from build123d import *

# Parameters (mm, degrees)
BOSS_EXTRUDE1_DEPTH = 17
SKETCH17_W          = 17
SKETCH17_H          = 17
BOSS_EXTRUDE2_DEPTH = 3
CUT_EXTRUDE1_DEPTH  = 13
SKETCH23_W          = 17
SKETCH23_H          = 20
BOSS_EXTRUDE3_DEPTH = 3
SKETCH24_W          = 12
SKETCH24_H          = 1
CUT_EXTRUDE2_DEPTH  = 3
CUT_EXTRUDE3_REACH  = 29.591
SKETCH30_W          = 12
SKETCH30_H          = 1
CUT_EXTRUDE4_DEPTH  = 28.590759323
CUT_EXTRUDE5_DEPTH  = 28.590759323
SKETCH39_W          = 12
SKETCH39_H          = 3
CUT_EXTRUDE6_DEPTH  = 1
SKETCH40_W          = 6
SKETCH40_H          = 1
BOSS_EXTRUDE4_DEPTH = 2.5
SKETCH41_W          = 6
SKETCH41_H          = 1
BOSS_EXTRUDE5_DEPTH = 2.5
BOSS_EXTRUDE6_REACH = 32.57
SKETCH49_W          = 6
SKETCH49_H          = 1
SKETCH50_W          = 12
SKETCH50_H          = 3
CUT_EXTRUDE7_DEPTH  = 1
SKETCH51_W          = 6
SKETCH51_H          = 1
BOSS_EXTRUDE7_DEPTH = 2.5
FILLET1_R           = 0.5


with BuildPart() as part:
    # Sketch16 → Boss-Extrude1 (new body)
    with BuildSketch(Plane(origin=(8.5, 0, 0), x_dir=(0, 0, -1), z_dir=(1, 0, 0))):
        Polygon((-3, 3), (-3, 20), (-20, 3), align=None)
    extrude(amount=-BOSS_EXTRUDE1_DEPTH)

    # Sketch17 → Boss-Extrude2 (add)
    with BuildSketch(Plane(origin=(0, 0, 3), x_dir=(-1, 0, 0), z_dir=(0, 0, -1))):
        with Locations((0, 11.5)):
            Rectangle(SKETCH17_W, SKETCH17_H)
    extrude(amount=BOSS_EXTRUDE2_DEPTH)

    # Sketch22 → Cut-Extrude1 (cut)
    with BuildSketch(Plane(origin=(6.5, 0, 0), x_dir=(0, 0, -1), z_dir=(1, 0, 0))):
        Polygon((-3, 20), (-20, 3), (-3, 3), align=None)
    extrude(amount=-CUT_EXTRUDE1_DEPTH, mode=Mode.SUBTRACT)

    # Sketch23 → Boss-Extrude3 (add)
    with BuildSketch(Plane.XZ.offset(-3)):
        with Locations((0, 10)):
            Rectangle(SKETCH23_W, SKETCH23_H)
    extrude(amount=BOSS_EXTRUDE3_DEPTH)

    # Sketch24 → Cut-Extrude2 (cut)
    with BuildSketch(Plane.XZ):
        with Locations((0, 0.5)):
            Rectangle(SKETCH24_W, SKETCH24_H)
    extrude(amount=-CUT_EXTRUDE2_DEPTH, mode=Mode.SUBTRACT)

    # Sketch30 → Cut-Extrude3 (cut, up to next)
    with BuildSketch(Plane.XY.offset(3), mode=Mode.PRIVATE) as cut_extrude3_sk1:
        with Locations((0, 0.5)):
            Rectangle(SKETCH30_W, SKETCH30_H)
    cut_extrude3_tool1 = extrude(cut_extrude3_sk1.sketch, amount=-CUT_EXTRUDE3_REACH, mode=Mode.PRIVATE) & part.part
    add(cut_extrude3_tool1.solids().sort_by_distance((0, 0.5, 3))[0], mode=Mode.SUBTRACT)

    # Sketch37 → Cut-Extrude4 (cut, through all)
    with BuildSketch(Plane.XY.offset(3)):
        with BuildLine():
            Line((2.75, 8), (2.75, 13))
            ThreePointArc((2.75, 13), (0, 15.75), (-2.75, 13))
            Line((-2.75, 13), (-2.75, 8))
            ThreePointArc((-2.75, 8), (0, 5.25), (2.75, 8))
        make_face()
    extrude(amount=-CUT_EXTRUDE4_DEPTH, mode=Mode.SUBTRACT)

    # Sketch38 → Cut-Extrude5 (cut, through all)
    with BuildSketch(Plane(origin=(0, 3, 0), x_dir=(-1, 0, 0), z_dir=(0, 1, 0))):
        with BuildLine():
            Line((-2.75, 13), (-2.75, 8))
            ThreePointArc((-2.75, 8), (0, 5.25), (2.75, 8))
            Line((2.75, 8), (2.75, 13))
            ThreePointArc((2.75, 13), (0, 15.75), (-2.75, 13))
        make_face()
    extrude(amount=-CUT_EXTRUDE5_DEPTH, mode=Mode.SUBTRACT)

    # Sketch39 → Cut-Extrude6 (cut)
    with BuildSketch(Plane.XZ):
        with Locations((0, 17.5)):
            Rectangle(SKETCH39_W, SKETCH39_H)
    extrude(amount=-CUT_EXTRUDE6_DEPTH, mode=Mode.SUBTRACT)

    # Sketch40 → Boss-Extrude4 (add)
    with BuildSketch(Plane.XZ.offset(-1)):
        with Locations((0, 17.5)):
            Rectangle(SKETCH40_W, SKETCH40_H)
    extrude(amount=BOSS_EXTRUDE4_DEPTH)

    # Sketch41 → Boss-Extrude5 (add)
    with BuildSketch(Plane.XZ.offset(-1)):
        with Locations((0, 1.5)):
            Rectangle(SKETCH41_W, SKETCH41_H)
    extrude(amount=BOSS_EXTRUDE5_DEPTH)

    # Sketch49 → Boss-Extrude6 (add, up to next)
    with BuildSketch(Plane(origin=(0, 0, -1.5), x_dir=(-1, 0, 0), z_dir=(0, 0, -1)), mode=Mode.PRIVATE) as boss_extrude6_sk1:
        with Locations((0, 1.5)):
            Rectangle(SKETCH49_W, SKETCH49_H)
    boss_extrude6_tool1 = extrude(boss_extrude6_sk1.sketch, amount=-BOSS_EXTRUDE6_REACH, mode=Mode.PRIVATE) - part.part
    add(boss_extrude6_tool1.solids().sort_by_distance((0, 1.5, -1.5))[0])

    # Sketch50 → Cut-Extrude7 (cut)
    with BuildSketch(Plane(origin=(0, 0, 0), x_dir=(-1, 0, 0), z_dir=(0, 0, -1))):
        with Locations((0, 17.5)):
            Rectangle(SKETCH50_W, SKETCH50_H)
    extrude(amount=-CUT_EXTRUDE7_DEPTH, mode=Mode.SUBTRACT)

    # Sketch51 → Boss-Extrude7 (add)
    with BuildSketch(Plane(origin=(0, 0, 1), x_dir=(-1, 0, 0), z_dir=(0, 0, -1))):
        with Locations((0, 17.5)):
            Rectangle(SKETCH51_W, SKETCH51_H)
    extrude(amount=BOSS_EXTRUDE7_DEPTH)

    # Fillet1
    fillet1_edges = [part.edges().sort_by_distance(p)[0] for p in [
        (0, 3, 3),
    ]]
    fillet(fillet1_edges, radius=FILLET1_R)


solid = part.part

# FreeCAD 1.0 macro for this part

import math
import FreeCAD as App
import Part
import Sketcher
from FreeCAD import Vector


def edges_at(feature, points):
    """Names of the edges that pass closest to the given points."""
    edges = feature.Shape.Edges
    near = lambda p: min(range(len(edges)), key=lambda i: edges[i].distToShape(Part.Vertex(*p))[0])
    return sorted({f"Edge{near(p) + 1}" for p in points})

doc = App.newDocument("Part")
body = doc.addObject("PartDesign::Body", "Body")

sketch1 = doc.addObject("Sketcher::SketchObject", "Sketch")
body.addObject(sketch1)
sketch1.AttachmentSupport = (doc.YZ_Plane, [""])
sketch1.MapMode = "FlatFace"
sketch1.AttachmentOffset = App.Placement(Vector(0, 0, 8.5), App.Rotation())
sketch1.addGeometry([
    Part.LineSegment(Vector(3, 3, 0), Vector(20, 3, 0)),
    Part.LineSegment(Vector(20, 3, 0), Vector(3, 20, 0)),
    Part.LineSegment(Vector(3, 20, 0), Vector(3, 3, 0)),
], False)
sketch1.addConstraint([
    Sketcher.Constraint("Coincident", 0, 2, 1, 1),
    Sketcher.Constraint("Coincident", 1, 2, 2, 1),
    Sketcher.Constraint("Coincident", 2, 2, 0, 1),
    Sketcher.Constraint("Horizontal", 0),
    Sketcher.Constraint("Vertical", 2),
    Sketcher.Constraint("Equal", 0, 2),
    Sketcher.Constraint("DistanceX", 0, 1, 0, 2, 17.0),
    Sketcher.Constraint("DistanceX", -1, 1, 0, 2, 20.0),
    Sketcher.Constraint("DistanceY", -1, 1, 0, 2, 3.0),
])
pad1 = doc.addObject("PartDesign::Pad", "Pad")
body.addObject(pad1)
pad1.Profile = sketch1
pad1.Length = 17
pad1.Reversed = True

sketch2 = doc.addObject("Sketcher::SketchObject", "Sketch001")
body.addObject(sketch2)
sketch2.AttachmentSupport = (doc.XY_Plane, [""])
sketch2.MapMode = "FlatFace"
sketch2.AttachmentOffset = App.Placement(Vector(0, 0, 3), App.Rotation())
sketch2.addGeometry([
    Part.LineSegment(Vector(8.5, 20, 0), Vector(8.5, 3, 0)),
    Part.LineSegment(Vector(8.5, 3, 0), Vector(-8.5, 3, 0)),
    Part.LineSegment(Vector(-8.5, 3, 0), Vector(-8.5, 20, 0)),
    Part.LineSegment(Vector(-8.5, 20, 0), Vector(8.5, 20, 0)),
], False)
sketch2.addConstraint([
    Sketcher.Constraint("Coincident", 0, 2, 1, 1),
    Sketcher.Constraint("Coincident", 1, 2, 2, 1),
    Sketcher.Constraint("Coincident", 2, 2, 3, 1),
    Sketcher.Constraint("Coincident", 3, 2, 0, 1),
    Sketcher.Constraint("Vertical", 0),
    Sketcher.Constraint("Horizontal", 1),
    Sketcher.Constraint("Vertical", 2),
    Sketcher.Constraint("Horizontal", 3),
    Sketcher.Constraint("Equal", 3, 0),
    Sketcher.Constraint("DistanceX", 1, 2, 1, 1, 17.0),
    Sketcher.Constraint("DistanceY", -1, 1, 0, 2, 3.0),
    Sketcher.Constraint("DistanceX", -1, 1, 0, 2, 8.5),
])
pad2 = doc.addObject("PartDesign::Pad", "Pad001")
body.addObject(pad2)
pad2.Profile = sketch2
pad2.Length = 3
pad2.Reversed = True

sketch3 = doc.addObject("Sketcher::SketchObject", "Sketch002")
body.addObject(sketch3)
sketch3.AttachmentSupport = (doc.YZ_Plane, [""])
sketch3.MapMode = "FlatFace"
sketch3.AttachmentOffset = App.Placement(Vector(0, 0, 6.5), App.Rotation())
sketch3.addGeometry([
    Part.LineSegment(Vector(20, 3, 0), Vector(3, 20, 0)),
    Part.LineSegment(Vector(3, 20, 0), Vector(3, 3, 0)),
    Part.LineSegment(Vector(3, 3, 0), Vector(20, 3, 0)),
], False)
sketch3.addConstraint([
    Sketcher.Constraint("Coincident", 0, 2, 1, 1),
    Sketcher.Constraint("Coincident", 1, 2, 2, 1),
    Sketcher.Constraint("Coincident", 2, 2, 0, 1),
    Sketcher.Constraint("Vertical", 1),
    Sketcher.Constraint("Horizontal", 2),
    Sketcher.Constraint("Equal", 2, 1),
    Sketcher.Constraint("DistanceX", 2, 1, 2, 2, 17.0),
    Sketcher.Constraint("DistanceX", -1, 1, 0, 2, 3.0),
    Sketcher.Constraint("DistanceY", -1, 1, 0, 2, 20.0),
])
pocket1 = doc.addObject("PartDesign::Pocket", "Pocket")
body.addObject(pocket1)
pocket1.Profile = sketch3
pocket1.Length = 13

sketch4 = doc.addObject("Sketcher::SketchObject", "Sketch003")
body.addObject(sketch4)
sketch4.AttachmentSupport = (doc.XZ_Plane, [""])
sketch4.MapMode = "FlatFace"
sketch4.AttachmentOffset = App.Placement(Vector(0, 0, -3), App.Rotation())
sketch4.addGeometry([
    Part.LineSegment(Vector(-8.5, 20, 0), Vector(-8.5, 0, 0)),
    Part.LineSegment(Vector(-8.5, 0, 0), Vector(8.5, 0, 0)),
    Part.LineSegment(Vector(8.5, 0, 0), Vector(8.5, 20, 0)),
    Part.LineSegment(Vector(8.5, 20, 0), Vector(-8.5, 20, 0)),
], False)
sketch4.addConstraint([
    Sketcher.Constraint("Coincident", 0, 2, 1, 1),
    Sketcher.Constraint("Coincident", 1, 2, 2, 1),
    Sketcher.Constraint("Coincident", 2, 2, 3, 1),
    Sketcher.Constraint("Coincident", 3, 2, 0, 1),
    Sketcher.Constraint("Vertical", 0),
    Sketcher.Constraint("Horizontal", 1),
    Sketcher.Constraint("Vertical", 2),
    Sketcher.Constraint("Horizontal", 3),
    Sketcher.Constraint("Symmetric", 0, 2, 1, 2, -1, 1),
    Sketcher.Constraint("DistanceX", 1, 1, 1, 2, 17.0),
    Sketcher.Constraint("DistanceY", 0, 2, 0, 1, 20.0),
])
pad3 = doc.addObject("PartDesign::Pad", "Pad002")
body.addObject(pad3)
pad3.Profile = sketch4
pad3.Length = 3

sketch5 = doc.addObject("Sketcher::SketchObject", "Sketch004")
body.addObject(sketch5)
sketch5.AttachmentSupport = (doc.XZ_Plane, [""])
sketch5.MapMode = "FlatFace"
sketch5.addGeometry([
    Part.LineSegment(Vector(-6, 1, 0), Vector(-6, 0, 0)),
    Part.LineSegment(Vector(-6, 0, 0), Vector(6, 0, 0)),
    Part.LineSegment(Vector(6, 0, 0), Vector(6, 1, 0)),
    Part.LineSegment(Vector(6, 1, 0), Vector(-6, 1, 0)),
], False)
sketch5.addConstraint([
    Sketcher.Constraint("Coincident", 0, 2, 1, 1),
    Sketcher.Constraint("Coincident", 1, 2, 2, 1),
    Sketcher.Constraint("Coincident", 2, 2, 3, 1),
    Sketcher.Constraint("Coincident", 3, 2, 0, 1),
    Sketcher.Constraint("Vertical", 0),
    Sketcher.Constraint("Horizontal", 1),
    Sketcher.Constraint("Vertical", 2),
    Sketcher.Constraint("Horizontal", 3),
    Sketcher.Constraint("Symmetric", 0, 2, 1, 2, -1, 1),
    Sketcher.Constraint("DistanceX", 1, 1, 1, 2, 12.0),
    Sketcher.Constraint("DistanceY", 0, 2, 0, 1, 1.0),
])
pocket2 = doc.addObject("PartDesign::Pocket", "Pocket001")
body.addObject(pocket2)
pocket2.Profile = sketch5
pocket2.Length = 3

sketch6 = doc.addObject("Sketcher::SketchObject", "Sketch005")
body.addObject(sketch6)
sketch6.AttachmentSupport = (doc.XY_Plane, [""])
sketch6.MapMode = "FlatFace"
sketch6.AttachmentOffset = App.Placement(Vector(0, 0, 3), App.Rotation())
sketch6.addGeometry([
    Part.LineSegment(Vector(-6, 1, 0), Vector(-6, 0, 0)),
    Part.LineSegment(Vector(-6, 0, 0), Vector(6, 0, 0)),
    Part.LineSegment(Vector(6, 0, 0), Vector(6, 1, 0)),
    Part.LineSegment(Vector(6, 1, 0), Vector(-6, 1, 0)),
], False)
sketch6.addConstraint([
    Sketcher.Constraint("Coincident", 0, 2, 1, 1),
    Sketcher.Constraint("Coincident", 1, 2, 2, 1),
    Sketcher.Constraint("Coincident", 2, 2, 3, 1),
    Sketcher.Constraint("Coincident", 3, 2, 0, 1),
    Sketcher.Constraint("Vertical", 0),
    Sketcher.Constraint("Horizontal", 1),
    Sketcher.Constraint("Vertical", 2),
    Sketcher.Constraint("Horizontal", 3),
    Sketcher.Constraint("Symmetric", 0, 2, 1, 2, -1, 1),
    Sketcher.Constraint("DistanceX", 1, 1, 1, 2, 12.0),
    Sketcher.Constraint("DistanceY", 0, 2, 0, 1, 1.0),
])
pocket3 = doc.addObject("PartDesign::Pocket", "Pocket002")
body.addObject(pocket3)
pocket3.Profile = sketch6
pocket3.Type = "UpToFirst"

sketch7 = doc.addObject("Sketcher::SketchObject", "Sketch006")
body.addObject(sketch7)
sketch7.AttachmentSupport = (doc.XY_Plane, [""])
sketch7.MapMode = "FlatFace"
sketch7.AttachmentOffset = App.Placement(Vector(0, 0, 3), App.Rotation())
sketch7.addGeometry([
    Part.LineSegment(Vector(2.75, 8, 0), Vector(2.75, 13, 0)),
    Part.ArcOfCircle(Part.Circle(Vector(0, 13, 0), Vector(0, 0, 1), 2.75), math.radians(0), math.radians(180)),
    Part.LineSegment(Vector(-2.75, 13, 0), Vector(-2.75, 8, 0)),
    Part.ArcOfCircle(Part.Circle(Vector(0, 8, 0), Vector(0, 0, 1), 2.75), math.radians(180), math.radians(360)),
], False)
sketch7.addConstraint([
    Sketcher.Constraint("Tangent", 0, 2, 1, 1),
    Sketcher.Constraint("Tangent", 1, 2, 2, 1),
    Sketcher.Constraint("Tangent", 2, 2, 3, 1),
    Sketcher.Constraint("Tangent", 3, 2, 0, 1),
    Sketcher.Constraint("Vertical", 0),
    Sketcher.Constraint("Vertical", 2),
    Sketcher.Constraint("PointOnObject", 1, 3, -2),
    Sketcher.Constraint("DistanceY", 0, 1, 0, 2, 5.0),
    Sketcher.Constraint("Radius", 1, 2.75),
    Sketcher.Constraint("DistanceY", -1, 1, 1, 3, 13.0),
])
pocket4 = doc.addObject("PartDesign::Pocket", "Pocket003")
body.addObject(pocket4)
pocket4.Profile = sketch7
pocket4.Type = "ThroughAll"

sketch8 = doc.addObject("Sketcher::SketchObject", "Sketch007")
body.addObject(sketch8)
sketch8.AttachmentSupport = (doc.XZ_Plane, [""])
sketch8.MapMode = "FlatFace"
sketch8.AttachmentOffset = App.Placement(Vector(0, 0, -3), App.Rotation())
sketch8.addGeometry([
    Part.LineSegment(Vector(2.75, 13, 0), Vector(2.75, 8, 0)),
    Part.ArcOfCircle(Part.Circle(Vector(0, 8, 0), Vector(0, 0, 1), 2.75), math.radians(180), math.radians(360)),
    Part.LineSegment(Vector(-2.75, 8, 0), Vector(-2.75, 13, 0)),
    Part.ArcOfCircle(Part.Circle(Vector(0, 13, 0), Vector(0, 0, 1), 2.75), math.radians(0), math.radians(180)),
], False)
sketch8.addConstraint([
    Sketcher.Constraint("Tangent", 0, 2, 1, 2),
    Sketcher.Constraint("Tangent", 1, 1, 2, 1),
    Sketcher.Constraint("Tangent", 2, 2, 3, 2),
    Sketcher.Constraint("Tangent", 3, 1, 0, 1),
    Sketcher.Constraint("Vertical", 0),
    Sketcher.Constraint("Vertical", 2),
    Sketcher.Constraint("PointOnObject", 1, 3, -2),
    Sketcher.Constraint("DistanceY", 0, 2, 0, 1, 5.0),
    Sketcher.Constraint("Radius", 1, 2.75),
    Sketcher.Constraint("DistanceY", -1, 1, 1, 3, 8.0),
])
pocket5 = doc.addObject("PartDesign::Pocket", "Pocket004")
body.addObject(pocket5)
pocket5.Profile = sketch8
pocket5.Type = "ThroughAll"
pocket5.Reversed = True

sketch9 = doc.addObject("Sketcher::SketchObject", "Sketch008")
body.addObject(sketch9)
sketch9.AttachmentSupport = (doc.XZ_Plane, [""])
sketch9.MapMode = "FlatFace"
sketch9.addGeometry([
    Part.LineSegment(Vector(-6, 19, 0), Vector(-6, 16, 0)),
    Part.LineSegment(Vector(-6, 16, 0), Vector(6, 16, 0)),
    Part.LineSegment(Vector(6, 16, 0), Vector(6, 19, 0)),
    Part.LineSegment(Vector(6, 19, 0), Vector(-6, 19, 0)),
], False)
sketch9.addConstraint([
    Sketcher.Constraint("Coincident", 0, 2, 1, 1),
    Sketcher.Constraint("Coincident", 1, 2, 2, 1),
    Sketcher.Constraint("Coincident", 2, 2, 3, 1),
    Sketcher.Constraint("Coincident", 3, 2, 0, 1),
    Sketcher.Constraint("Vertical", 0),
    Sketcher.Constraint("Horizontal", 1),
    Sketcher.Constraint("Vertical", 2),
    Sketcher.Constraint("Horizontal", 3),
    Sketcher.Constraint("DistanceX", 1, 1, 1, 2, 12.0),
    Sketcher.Constraint("DistanceY", 0, 2, 0, 1, 3.0),
    Sketcher.Constraint("DistanceX", 0, 2, -1, 1, 6.0),
    Sketcher.Constraint("DistanceY", -1, 1, 0, 2, 16.0),
])
pocket6 = doc.addObject("PartDesign::Pocket", "Pocket005")
body.addObject(pocket6)
pocket6.Profile = sketch9
pocket6.Length = 1

sketch10 = doc.addObject("Sketcher::SketchObject", "Sketch009")
body.addObject(sketch10)
sketch10.AttachmentSupport = (doc.XZ_Plane, [""])
sketch10.MapMode = "FlatFace"
sketch10.AttachmentOffset = App.Placement(Vector(0, 0, -1), App.Rotation())
sketch10.addGeometry([
    Part.LineSegment(Vector(-3, 18, 0), Vector(-3, 17, 0)),
    Part.LineSegment(Vector(-3, 17, 0), Vector(3, 17, 0)),
    Part.LineSegment(Vector(3, 17, 0), Vector(3, 18, 0)),
    Part.LineSegment(Vector(3, 18, 0), Vector(-3, 18, 0)),
], False)
sketch10.addConstraint([
    Sketcher.Constraint("Coincident", 0, 2, 1, 1),
    Sketcher.Constraint("Coincident", 1, 2, 2, 1),
    Sketcher.Constraint("Coincident", 2, 2, 3, 1),
    Sketcher.Constraint("Coincident", 3, 2, 0, 1),
    Sketcher.Constraint("Vertical", 0),
    Sketcher.Constraint("Horizontal", 1),
    Sketcher.Constraint("Vertical", 2),
    Sketcher.Constraint("Horizontal", 3),
    Sketcher.Constraint("DistanceX", 1, 1, 1, 2, 6.0),
    Sketcher.Constraint("DistanceY", 0, 2, 0, 1, 1.0),
    Sketcher.Constraint("DistanceX", 0, 2, -1, 1, 3.0),
    Sketcher.Constraint("DistanceY", -1, 1, 0, 2, 17.0),
])
pad4 = doc.addObject("PartDesign::Pad", "Pad003")
body.addObject(pad4)
pad4.Profile = sketch10
pad4.Length = 2.5

sketch11 = doc.addObject("Sketcher::SketchObject", "Sketch010")
body.addObject(sketch11)
sketch11.AttachmentSupport = (doc.XZ_Plane, [""])
sketch11.MapMode = "FlatFace"
sketch11.AttachmentOffset = App.Placement(Vector(0, 0, -1), App.Rotation())
sketch11.addGeometry([
    Part.LineSegment(Vector(-3, 2, 0), Vector(-3, 1, 0)),
    Part.LineSegment(Vector(-3, 1, 0), Vector(3, 1, 0)),
    Part.LineSegment(Vector(3, 1, 0), Vector(3, 2, 0)),
    Part.LineSegment(Vector(3, 2, 0), Vector(-3, 2, 0)),
], False)
sketch11.addConstraint([
    Sketcher.Constraint("Coincident", 0, 2, 1, 1),
    Sketcher.Constraint("Coincident", 1, 2, 2, 1),
    Sketcher.Constraint("Coincident", 2, 2, 3, 1),
    Sketcher.Constraint("Coincident", 3, 2, 0, 1),
    Sketcher.Constraint("Vertical", 0),
    Sketcher.Constraint("Horizontal", 1),
    Sketcher.Constraint("Vertical", 2),
    Sketcher.Constraint("Horizontal", 3),
    Sketcher.Constraint("DistanceX", 1, 1, 1, 2, 6.0),
    Sketcher.Constraint("DistanceY", 0, 2, 0, 1, 1.0),
    Sketcher.Constraint("DistanceX", 0, 2, -1, 1, 3.0),
    Sketcher.Constraint("DistanceY", -1, 1, 0, 2, 1.0),
])
pad5 = doc.addObject("PartDesign::Pad", "Pad004")
body.addObject(pad5)
pad5.Profile = sketch11
pad5.Length = 2.5

sketch12 = doc.addObject("Sketcher::SketchObject", "Sketch011")
body.addObject(sketch12)
sketch12.AttachmentSupport = (doc.XY_Plane, [""])
sketch12.MapMode = "FlatFace"
sketch12.AttachmentOffset = App.Placement(Vector(0, 0, -1.5), App.Rotation())
sketch12.addGeometry([
    Part.LineSegment(Vector(3, 2, 0), Vector(3, 1, 0)),
    Part.LineSegment(Vector(3, 1, 0), Vector(-3, 1, 0)),
    Part.LineSegment(Vector(-3, 1, 0), Vector(-3, 2, 0)),
    Part.LineSegment(Vector(-3, 2, 0), Vector(3, 2, 0)),
], False)
sketch12.addConstraint([
    Sketcher.Constraint("Coincident", 0, 2, 1, 1),
    Sketcher.Constraint("Coincident", 1, 2, 2, 1),
    Sketcher.Constraint("Coincident", 2, 2, 3, 1),
    Sketcher.Constraint("Coincident", 3, 2, 0, 1),
    Sketcher.Constraint("Vertical", 0),
    Sketcher.Constraint("Horizontal", 1),
    Sketcher.Constraint("Vertical", 2),
    Sketcher.Constraint("Horizontal", 3),
    Sketcher.Constraint("DistanceX", 1, 2, 1, 1, 6.0),
    Sketcher.Constraint("DistanceY", 0, 2, 0, 1, 1.0),
    Sketcher.Constraint("DistanceX", -1, 1, 0, 2, 3.0),
    Sketcher.Constraint("DistanceY", -1, 1, 0, 2, 1.0),
])
pad6 = doc.addObject("PartDesign::Pad", "Pad005")
body.addObject(pad6)
pad6.Profile = sketch12
pad6.Type = "UpToFirst"

sketch13 = doc.addObject("Sketcher::SketchObject", "Sketch012")
body.addObject(sketch13)
sketch13.AttachmentSupport = (doc.XY_Plane, [""])
sketch13.MapMode = "FlatFace"
sketch13.addGeometry([
    Part.LineSegment(Vector(6, 19, 0), Vector(6, 16, 0)),
    Part.LineSegment(Vector(6, 16, 0), Vector(-6, 16, 0)),
    Part.LineSegment(Vector(-6, 16, 0), Vector(-6, 19, 0)),
    Part.LineSegment(Vector(-6, 19, 0), Vector(6, 19, 0)),
], False)
sketch13.addConstraint([
    Sketcher.Constraint("Coincident", 0, 2, 1, 1),
    Sketcher.Constraint("Coincident", 1, 2, 2, 1),
    Sketcher.Constraint("Coincident", 2, 2, 3, 1),
    Sketcher.Constraint("Coincident", 3, 2, 0, 1),
    Sketcher.Constraint("Vertical", 0),
    Sketcher.Constraint("Horizontal", 1),
    Sketcher.Constraint("Vertical", 2),
    Sketcher.Constraint("Horizontal", 3),
    Sketcher.Constraint("DistanceX", 1, 2, 1, 1, 12.0),
    Sketcher.Constraint("DistanceY", 0, 2, 0, 1, 3.0),
    Sketcher.Constraint("DistanceX", -1, 1, 0, 2, 6.0),
    Sketcher.Constraint("DistanceY", -1, 1, 0, 2, 16.0),
])
pocket7 = doc.addObject("PartDesign::Pocket", "Pocket006")
body.addObject(pocket7)
pocket7.Profile = sketch13
pocket7.Length = 1
pocket7.Reversed = True

sketch14 = doc.addObject("Sketcher::SketchObject", "Sketch013")
body.addObject(sketch14)
sketch14.AttachmentSupport = (doc.XY_Plane, [""])
sketch14.MapMode = "FlatFace"
sketch14.AttachmentOffset = App.Placement(Vector(0, 0, 1), App.Rotation())
sketch14.addGeometry([
    Part.LineSegment(Vector(3, 18, 0), Vector(3, 17, 0)),
    Part.LineSegment(Vector(3, 17, 0), Vector(-3, 17, 0)),
    Part.LineSegment(Vector(-3, 17, 0), Vector(-3, 18, 0)),
    Part.LineSegment(Vector(-3, 18, 0), Vector(3, 18, 0)),
], False)
sketch14.addConstraint([
    Sketcher.Constraint("Coincident", 0, 2, 1, 1),
    Sketcher.Constraint("Coincident", 1, 2, 2, 1),
    Sketcher.Constraint("Coincident", 2, 2, 3, 1),
    Sketcher.Constraint("Coincident", 3, 2, 0, 1),
    Sketcher.Constraint("Vertical", 0),
    Sketcher.Constraint("Horizontal", 1),
    Sketcher.Constraint("Vertical", 2),
    Sketcher.Constraint("Horizontal", 3),
    Sketcher.Constraint("DistanceX", 1, 2, 1, 1, 6.0),
    Sketcher.Constraint("DistanceY", 0, 2, 0, 1, 1.0),
    Sketcher.Constraint("DistanceX", -1, 1, 0, 2, 3.0),
    Sketcher.Constraint("DistanceY", -1, 1, 0, 2, 17.0),
])
pad7 = doc.addObject("PartDesign::Pad", "Pad006")
body.addObject(pad7)
pad7.Profile = sketch14
pad7.Length = 2.5
pad7.Reversed = True
doc.recompute()

fillet = doc.addObject("PartDesign::Fillet", "Fillet")
body.addObject(fillet)
fillet.Base = (pad7, edges_at(pad7, [(0, 3, 3)]))
fillet.Radius = 0.5

doc.recompute()
